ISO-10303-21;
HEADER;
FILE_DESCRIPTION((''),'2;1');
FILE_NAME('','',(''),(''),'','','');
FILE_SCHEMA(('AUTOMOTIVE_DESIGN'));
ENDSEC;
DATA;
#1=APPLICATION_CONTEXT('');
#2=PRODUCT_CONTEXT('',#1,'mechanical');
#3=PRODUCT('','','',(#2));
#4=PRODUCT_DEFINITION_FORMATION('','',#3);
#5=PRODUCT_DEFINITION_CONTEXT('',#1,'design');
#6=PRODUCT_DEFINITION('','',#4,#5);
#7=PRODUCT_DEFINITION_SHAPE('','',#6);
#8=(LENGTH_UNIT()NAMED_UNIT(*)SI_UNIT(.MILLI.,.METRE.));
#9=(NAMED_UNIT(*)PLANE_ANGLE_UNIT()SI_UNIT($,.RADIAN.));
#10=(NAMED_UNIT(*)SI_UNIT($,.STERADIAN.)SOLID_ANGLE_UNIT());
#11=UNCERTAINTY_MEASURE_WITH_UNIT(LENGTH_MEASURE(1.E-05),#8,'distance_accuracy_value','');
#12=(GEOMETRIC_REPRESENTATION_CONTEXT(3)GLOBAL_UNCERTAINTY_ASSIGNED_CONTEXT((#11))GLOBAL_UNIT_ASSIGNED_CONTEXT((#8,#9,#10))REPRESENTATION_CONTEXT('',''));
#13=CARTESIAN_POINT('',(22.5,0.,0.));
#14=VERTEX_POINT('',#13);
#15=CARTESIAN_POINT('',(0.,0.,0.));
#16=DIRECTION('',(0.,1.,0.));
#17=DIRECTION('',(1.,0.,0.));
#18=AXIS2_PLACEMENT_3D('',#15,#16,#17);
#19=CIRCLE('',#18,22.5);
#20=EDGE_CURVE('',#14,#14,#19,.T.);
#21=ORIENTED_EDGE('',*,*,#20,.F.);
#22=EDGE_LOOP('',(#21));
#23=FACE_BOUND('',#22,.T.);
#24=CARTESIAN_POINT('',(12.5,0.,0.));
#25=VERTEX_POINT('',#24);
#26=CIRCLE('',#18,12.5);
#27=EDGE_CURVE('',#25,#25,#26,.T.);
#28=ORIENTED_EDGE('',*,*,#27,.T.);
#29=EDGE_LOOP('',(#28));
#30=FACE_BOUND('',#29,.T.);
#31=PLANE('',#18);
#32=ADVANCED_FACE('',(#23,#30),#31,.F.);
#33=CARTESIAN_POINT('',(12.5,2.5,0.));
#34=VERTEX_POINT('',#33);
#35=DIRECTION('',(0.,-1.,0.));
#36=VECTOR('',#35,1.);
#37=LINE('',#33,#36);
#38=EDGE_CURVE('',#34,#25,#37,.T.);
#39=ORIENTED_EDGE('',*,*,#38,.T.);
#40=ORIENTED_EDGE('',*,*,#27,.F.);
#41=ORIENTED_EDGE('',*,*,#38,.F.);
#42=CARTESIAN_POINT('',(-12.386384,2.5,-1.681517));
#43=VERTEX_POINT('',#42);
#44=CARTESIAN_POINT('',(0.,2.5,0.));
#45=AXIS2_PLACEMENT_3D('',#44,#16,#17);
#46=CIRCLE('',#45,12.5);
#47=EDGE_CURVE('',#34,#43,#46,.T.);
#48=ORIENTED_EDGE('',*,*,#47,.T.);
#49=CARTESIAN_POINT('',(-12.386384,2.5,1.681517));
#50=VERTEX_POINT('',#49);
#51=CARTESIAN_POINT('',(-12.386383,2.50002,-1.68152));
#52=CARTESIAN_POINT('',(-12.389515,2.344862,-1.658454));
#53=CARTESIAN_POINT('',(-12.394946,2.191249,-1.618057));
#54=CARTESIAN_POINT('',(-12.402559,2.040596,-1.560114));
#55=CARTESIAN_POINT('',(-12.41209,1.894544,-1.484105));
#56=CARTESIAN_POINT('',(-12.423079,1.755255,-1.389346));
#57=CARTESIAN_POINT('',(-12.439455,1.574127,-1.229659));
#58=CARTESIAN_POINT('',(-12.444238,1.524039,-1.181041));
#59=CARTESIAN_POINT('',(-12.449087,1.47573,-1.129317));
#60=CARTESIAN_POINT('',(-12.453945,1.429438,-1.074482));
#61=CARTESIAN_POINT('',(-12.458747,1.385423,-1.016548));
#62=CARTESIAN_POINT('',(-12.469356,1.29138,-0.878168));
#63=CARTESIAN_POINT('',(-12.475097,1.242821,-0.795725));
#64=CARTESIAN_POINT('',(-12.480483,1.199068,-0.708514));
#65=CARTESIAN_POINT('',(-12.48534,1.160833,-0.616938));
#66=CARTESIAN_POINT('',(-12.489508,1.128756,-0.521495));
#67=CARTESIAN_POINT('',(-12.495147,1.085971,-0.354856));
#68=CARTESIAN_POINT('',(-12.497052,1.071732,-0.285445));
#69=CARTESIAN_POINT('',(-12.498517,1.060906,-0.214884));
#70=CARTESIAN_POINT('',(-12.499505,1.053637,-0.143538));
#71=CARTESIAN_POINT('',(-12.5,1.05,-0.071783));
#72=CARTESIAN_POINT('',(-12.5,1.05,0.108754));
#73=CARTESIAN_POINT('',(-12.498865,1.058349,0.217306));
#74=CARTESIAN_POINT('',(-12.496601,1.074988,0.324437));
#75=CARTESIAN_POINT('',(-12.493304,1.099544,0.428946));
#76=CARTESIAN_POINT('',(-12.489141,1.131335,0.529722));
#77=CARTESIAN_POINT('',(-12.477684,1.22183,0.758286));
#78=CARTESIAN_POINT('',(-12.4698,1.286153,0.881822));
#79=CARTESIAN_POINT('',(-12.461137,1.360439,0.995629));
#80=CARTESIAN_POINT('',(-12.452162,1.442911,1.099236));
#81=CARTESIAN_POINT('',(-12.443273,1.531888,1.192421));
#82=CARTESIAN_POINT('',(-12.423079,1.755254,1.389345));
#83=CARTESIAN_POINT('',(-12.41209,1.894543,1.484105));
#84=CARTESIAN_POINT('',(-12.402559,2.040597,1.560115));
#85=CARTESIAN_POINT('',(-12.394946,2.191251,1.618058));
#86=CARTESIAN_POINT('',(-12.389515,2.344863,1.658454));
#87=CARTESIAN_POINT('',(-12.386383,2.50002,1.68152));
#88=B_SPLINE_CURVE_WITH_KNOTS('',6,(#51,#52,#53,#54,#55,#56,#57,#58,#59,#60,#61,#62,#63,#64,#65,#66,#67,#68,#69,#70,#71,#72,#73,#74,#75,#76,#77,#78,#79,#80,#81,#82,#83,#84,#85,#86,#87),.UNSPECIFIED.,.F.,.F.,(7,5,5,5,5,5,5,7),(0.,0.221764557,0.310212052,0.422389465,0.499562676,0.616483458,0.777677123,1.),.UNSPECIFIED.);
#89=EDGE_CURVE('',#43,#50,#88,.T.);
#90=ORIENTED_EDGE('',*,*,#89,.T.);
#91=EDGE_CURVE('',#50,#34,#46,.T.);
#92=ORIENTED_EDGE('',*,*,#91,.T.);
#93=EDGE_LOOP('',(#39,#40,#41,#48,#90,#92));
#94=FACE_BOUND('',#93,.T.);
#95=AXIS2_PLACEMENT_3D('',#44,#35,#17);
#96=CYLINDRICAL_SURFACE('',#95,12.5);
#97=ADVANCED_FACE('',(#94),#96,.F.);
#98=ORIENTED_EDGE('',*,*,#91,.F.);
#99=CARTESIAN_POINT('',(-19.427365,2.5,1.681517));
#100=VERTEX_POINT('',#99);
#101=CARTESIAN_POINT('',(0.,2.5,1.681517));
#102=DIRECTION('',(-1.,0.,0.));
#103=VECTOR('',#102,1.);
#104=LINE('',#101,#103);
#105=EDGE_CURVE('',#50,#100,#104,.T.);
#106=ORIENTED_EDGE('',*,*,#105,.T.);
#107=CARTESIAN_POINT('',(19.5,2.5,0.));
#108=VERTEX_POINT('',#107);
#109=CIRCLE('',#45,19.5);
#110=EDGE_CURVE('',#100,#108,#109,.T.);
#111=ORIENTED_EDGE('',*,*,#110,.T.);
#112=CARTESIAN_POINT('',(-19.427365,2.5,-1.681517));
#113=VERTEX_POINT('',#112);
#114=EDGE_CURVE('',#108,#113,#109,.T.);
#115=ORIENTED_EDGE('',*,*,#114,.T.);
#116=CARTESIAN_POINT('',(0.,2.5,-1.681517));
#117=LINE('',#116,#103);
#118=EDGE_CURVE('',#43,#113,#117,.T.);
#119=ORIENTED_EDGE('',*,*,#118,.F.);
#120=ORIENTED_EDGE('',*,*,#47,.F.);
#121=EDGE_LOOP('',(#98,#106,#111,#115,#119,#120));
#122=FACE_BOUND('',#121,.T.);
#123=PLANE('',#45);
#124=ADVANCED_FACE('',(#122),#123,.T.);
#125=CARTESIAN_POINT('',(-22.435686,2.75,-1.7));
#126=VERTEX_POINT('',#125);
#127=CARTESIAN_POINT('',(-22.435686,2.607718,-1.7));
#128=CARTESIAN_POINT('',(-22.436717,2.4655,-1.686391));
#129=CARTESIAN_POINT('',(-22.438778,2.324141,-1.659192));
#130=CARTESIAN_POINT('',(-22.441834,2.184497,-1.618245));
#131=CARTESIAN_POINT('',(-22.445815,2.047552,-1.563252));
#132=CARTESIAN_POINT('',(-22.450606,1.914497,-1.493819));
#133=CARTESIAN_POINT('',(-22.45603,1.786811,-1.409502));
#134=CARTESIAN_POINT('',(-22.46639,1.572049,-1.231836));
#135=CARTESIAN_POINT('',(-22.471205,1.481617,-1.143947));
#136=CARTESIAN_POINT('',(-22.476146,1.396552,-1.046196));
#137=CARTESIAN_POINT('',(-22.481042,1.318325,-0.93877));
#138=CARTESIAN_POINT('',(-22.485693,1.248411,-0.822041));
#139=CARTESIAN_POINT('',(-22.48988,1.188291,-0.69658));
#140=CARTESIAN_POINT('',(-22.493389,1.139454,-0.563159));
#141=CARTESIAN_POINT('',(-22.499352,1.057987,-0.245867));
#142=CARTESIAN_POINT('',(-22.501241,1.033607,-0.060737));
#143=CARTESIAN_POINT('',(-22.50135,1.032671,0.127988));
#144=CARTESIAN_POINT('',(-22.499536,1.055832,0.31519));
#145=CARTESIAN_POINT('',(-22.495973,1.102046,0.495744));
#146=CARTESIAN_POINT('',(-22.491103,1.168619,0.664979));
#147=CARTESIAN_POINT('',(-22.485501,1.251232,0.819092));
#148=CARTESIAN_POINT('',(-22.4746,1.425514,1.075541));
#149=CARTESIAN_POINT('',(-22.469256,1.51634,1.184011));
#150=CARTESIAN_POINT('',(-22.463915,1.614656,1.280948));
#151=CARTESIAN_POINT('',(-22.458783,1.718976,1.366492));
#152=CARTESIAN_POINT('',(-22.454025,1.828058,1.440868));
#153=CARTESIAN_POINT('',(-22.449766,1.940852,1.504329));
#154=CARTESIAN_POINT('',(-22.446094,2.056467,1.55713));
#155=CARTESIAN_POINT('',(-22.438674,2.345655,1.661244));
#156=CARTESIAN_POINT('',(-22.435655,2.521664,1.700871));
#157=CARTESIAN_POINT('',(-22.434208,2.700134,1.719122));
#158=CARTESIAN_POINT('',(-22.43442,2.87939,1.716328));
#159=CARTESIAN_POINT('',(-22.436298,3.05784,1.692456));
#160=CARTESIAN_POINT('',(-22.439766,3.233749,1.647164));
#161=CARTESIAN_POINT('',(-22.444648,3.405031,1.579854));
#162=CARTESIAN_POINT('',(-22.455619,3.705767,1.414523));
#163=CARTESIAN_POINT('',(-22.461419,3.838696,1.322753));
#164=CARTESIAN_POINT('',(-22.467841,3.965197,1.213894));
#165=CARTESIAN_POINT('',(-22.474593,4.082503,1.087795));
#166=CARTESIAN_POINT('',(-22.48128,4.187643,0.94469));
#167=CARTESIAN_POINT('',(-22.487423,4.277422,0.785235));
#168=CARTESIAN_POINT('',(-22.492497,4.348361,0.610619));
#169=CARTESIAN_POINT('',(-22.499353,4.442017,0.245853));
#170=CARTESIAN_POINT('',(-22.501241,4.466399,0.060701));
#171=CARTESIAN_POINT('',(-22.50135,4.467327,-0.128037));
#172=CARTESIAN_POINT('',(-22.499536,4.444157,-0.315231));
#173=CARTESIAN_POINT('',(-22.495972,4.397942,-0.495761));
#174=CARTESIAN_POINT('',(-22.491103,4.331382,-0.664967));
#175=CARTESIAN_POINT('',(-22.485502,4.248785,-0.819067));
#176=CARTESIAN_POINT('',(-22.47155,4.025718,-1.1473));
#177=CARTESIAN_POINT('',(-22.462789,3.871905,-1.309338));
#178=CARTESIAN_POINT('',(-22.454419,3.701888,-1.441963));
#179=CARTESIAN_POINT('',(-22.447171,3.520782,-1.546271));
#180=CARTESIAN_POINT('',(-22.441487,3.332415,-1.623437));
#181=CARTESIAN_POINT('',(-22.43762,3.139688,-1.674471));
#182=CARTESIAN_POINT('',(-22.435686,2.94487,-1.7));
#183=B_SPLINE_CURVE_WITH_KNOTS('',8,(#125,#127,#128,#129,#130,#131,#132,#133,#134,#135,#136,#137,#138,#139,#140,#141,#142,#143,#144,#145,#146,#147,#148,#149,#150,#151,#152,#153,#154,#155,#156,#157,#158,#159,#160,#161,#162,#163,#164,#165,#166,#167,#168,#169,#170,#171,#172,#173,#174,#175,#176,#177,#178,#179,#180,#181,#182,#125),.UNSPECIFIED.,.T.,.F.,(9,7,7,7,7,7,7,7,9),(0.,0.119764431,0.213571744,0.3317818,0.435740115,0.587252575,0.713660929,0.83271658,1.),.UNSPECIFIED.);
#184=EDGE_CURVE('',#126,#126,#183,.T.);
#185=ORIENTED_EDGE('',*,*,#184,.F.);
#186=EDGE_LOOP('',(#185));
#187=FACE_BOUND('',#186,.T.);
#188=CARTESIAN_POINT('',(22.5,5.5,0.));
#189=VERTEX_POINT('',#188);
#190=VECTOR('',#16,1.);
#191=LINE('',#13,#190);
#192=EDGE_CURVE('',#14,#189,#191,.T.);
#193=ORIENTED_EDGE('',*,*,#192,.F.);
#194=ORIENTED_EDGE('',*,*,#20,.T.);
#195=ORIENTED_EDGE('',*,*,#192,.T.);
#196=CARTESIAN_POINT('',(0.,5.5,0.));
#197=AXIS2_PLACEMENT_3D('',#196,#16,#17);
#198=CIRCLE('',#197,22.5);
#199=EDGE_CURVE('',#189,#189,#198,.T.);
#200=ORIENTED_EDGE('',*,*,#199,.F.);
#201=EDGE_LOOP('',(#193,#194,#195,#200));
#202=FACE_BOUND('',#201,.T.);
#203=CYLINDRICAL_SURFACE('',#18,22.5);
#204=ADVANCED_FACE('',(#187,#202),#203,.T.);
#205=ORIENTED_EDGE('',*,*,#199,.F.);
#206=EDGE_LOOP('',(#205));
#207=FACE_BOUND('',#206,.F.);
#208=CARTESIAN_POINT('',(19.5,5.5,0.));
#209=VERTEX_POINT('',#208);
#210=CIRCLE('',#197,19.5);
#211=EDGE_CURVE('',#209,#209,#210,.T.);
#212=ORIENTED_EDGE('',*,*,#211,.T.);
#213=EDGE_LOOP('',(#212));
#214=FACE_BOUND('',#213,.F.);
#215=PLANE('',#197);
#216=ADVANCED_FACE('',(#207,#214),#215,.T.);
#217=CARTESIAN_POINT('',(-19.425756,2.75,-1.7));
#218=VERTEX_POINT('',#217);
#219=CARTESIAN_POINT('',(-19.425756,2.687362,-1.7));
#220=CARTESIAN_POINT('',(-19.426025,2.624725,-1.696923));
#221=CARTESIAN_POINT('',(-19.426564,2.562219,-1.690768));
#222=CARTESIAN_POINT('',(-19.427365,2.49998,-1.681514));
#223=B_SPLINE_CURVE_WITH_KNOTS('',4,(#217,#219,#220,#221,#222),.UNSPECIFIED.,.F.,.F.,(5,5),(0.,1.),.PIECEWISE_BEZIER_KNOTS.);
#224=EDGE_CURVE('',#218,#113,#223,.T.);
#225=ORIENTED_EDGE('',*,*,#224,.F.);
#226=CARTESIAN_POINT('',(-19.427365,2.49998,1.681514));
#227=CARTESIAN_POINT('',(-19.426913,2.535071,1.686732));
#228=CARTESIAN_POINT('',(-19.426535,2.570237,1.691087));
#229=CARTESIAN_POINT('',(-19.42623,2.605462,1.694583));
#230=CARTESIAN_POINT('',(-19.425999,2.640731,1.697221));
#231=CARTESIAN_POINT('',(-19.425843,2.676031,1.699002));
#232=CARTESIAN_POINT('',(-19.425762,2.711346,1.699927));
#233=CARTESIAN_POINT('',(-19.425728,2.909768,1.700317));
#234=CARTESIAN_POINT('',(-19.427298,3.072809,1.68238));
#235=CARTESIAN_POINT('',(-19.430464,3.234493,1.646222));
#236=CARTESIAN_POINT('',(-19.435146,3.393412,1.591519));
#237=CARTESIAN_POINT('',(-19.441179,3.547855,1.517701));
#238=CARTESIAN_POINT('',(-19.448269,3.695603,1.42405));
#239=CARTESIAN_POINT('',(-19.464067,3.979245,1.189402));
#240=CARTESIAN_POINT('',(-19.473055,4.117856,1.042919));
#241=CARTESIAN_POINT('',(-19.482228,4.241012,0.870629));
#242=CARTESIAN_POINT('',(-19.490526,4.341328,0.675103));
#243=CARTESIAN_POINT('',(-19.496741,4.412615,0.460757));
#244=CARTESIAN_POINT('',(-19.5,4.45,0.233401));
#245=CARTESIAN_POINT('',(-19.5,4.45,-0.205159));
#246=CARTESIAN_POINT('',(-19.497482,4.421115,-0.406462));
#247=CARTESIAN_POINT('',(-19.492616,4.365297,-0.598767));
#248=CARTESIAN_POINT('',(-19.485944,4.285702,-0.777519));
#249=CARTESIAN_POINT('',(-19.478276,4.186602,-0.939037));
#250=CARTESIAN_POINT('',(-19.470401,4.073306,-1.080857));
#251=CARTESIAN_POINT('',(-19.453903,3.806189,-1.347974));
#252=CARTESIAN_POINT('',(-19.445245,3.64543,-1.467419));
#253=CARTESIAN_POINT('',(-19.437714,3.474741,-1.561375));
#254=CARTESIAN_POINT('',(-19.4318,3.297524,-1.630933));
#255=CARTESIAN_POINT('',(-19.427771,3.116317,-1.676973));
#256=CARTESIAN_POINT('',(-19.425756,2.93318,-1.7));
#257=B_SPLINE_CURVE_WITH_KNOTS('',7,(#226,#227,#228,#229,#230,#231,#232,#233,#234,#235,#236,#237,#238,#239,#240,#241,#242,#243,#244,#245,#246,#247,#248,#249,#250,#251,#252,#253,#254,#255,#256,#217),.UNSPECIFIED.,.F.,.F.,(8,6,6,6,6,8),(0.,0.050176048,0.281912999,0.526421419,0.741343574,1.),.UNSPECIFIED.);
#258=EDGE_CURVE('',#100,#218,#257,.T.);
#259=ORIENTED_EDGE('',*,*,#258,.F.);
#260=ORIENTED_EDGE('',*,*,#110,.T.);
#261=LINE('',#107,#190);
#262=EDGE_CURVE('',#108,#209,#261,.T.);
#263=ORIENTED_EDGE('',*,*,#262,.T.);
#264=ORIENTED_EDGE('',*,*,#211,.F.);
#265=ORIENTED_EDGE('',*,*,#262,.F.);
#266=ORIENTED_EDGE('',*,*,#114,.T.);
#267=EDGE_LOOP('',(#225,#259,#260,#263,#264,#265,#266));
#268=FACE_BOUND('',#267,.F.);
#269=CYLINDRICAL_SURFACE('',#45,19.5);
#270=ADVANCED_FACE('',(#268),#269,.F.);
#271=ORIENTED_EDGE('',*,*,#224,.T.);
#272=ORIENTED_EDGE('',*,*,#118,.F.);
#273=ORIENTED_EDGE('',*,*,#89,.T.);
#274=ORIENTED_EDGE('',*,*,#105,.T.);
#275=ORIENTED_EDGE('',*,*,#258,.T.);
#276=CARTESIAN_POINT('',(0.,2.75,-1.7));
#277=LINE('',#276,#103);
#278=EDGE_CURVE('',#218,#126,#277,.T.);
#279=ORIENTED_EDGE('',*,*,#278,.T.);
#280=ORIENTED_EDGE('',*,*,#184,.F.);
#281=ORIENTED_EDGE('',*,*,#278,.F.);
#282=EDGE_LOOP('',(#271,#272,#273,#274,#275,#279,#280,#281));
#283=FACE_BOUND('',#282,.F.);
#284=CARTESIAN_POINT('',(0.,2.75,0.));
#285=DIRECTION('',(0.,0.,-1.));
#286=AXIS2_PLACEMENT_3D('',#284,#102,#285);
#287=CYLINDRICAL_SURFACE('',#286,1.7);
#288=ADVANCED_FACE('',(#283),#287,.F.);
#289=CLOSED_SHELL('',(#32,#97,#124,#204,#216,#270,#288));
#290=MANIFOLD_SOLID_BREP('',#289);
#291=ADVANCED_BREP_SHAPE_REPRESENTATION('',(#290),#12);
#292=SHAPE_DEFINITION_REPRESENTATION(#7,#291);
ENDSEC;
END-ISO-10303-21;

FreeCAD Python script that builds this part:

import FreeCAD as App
import Part
import Sketcher

V = App.Vector


def add_polygon(sketch, points):
    """Adds a closed chain of lines whose ends are joined by coincident constraints."""
    first, n = sketch.GeometryCount, len(points)
    for a, b in zip(points, points[1:] + points[:1]):
        sketch.addGeometry(Part.LineSegment(App.Vector(*a, 0), App.Vector(*b, 0)), False)
    for i in range(n):
        sketch.addConstraint(Sketcher.Constraint("Coincident", first + i, 2, first + (i + 1) % n, 1))

doc = App.newDocument("Part")
params = doc.addObject("Spreadsheet::Sheet", "Params")
for row, (alias, value) in enumerate([
    ("sketch1_width", "3 mm"),
    ("sketch1_width2", "10 mm"),
    ("sketch1_height", "2.5 mm"),
    ("revolution_angle", "360 deg"),
    ("sketch2_diameter", "3.4 mm"),
    ("hole_diameter", "3.4 mm"),
], start=1):
    params.set(f"A{row}", alias)
    params.set(f"B{row}", "=" + value)
    params.setAlias(f"B{row}", alias)

body = doc.addObject("PartDesign::Body", "Body")

sketch1 = body.newObject("Sketcher::SketchObject", "Sketch")
sketch1.AttachmentSupport = (doc.getObject("XY_Plane"), [""])
sketch1.MapMode = "FlatFace"
add_polygon(sketch1, [(22.5, 0), (22.5, 5.5), (19.5, 5.5), (19.5, 2.5), (12.5, 2.5), (12.5, 0)])
sketch1.addConstraint([
    Sketcher.Constraint("Vertical", 0),
    Sketcher.Constraint("Horizontal", 1),
    Sketcher.Constraint("Vertical", 2),
    Sketcher.Constraint("Horizontal", 3),
    Sketcher.Constraint("Vertical", 4),
    Sketcher.Constraint("Horizontal", 5),
    Sketcher.Constraint("PointOnObject", 4, 2, -1),
    Sketcher.Constraint("Equal", 1, 2),
    Sketcher.Constraint("DistanceX", 1, 2, 1, 1, 3.0),
    Sketcher.Constraint("DistanceX", 5, 1, 5, 2, 10.0),
    Sketcher.Constraint("DistanceY", 4, 2, 4, 1, 2.5),
    Sketcher.Constraint("DistanceX", -1, 1, 3, 2, 12.5),
])
sketch1.setExpression("Constraints[14]", "Params.sketch1_width")
sketch1.setExpression("Constraints[15]", "Params.sketch1_width2")
sketch1.setExpression("Constraints[16]", "Params.sketch1_height")
revolution = body.newObject("PartDesign::Revolution", "Revolution")
revolution.Profile = sketch1
revolution.ReferenceAxis = (sketch1, ["V_Axis"])
revolution.setExpression("Angle", "Params.revolution_angle")

sketch2 = body.newObject("Sketcher::SketchObject", "Sketch001")
sketch2.AttachmentSupport = (doc.getObject("YZ_Plane"), [""])
sketch2.MapMode = "FlatFace"
sketch2.addGeometry(Part.Circle(V(2.8, 0, 0), V(0, 0, 1), 1.7), False)
sketch2.addConstraint([
    Sketcher.Constraint("PointOnObject", 0, 3, -1),
    Sketcher.Constraint("Diameter", 0, 3.4),
    Sketcher.Constraint("DistanceX", -1, 1, 0, 3, 2.75),
])
sketch2.setExpression("Constraints[1]", "Params.sketch2_diameter")
doc.recompute()
hole = body.newObject("PartDesign::Hole", "Hole")
hole.Profile = sketch2
hole.ThreadType = "None"
hole.setExpression("Diameter", "Params.hole_diameter")
hole.DepthType = "ThroughAll"

doc.recompute()
